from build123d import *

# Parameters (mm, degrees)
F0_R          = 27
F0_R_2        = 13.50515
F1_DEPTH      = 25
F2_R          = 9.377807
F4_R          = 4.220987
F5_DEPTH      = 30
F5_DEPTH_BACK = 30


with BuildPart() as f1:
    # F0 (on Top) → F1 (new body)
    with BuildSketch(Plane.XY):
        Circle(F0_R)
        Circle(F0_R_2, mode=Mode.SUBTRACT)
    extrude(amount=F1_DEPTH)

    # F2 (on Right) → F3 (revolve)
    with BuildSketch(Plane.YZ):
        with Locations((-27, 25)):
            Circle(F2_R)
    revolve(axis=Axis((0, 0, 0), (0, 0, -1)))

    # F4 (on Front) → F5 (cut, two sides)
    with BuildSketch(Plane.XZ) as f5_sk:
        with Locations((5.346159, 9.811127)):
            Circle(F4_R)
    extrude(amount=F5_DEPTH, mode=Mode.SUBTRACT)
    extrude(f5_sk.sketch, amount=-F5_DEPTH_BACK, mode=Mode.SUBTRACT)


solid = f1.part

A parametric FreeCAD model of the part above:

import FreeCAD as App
import Part
import Sketcher
from FreeCAD import Vector
Q = App.Units.Quantity

doc = App.newDocument("Part")
params = doc.addObject("Spreadsheet::Sheet", "Params")
for row, (alias, value) in enumerate([
    ("sketch1_diameter", "54 mm"),
    ("pad1_length", "25 mm"),
    ("revolution_angle", "360 deg"),
], start=1):
    params.set(f"A{row}", alias)
    params.set(f"B{row}", "=" + value)
    params.setAlias(f"B{row}", alias)

body = doc.addObject("PartDesign::Body", "Body")

sketch1 = body.newObject("Sketcher::SketchObject", "Sketch")
sketch1.AttachmentSupport = (doc.getObject("XY_Plane"), [""])
sketch1.MapMode = "FlatFace"
sketch1.addGeometry([
    Part.Circle(Vector(0, 0, 0), Vector(0, 0, 1), 27),
    Part.Circle(Vector(0, 0, 0), Vector(0, 0, 1), 14),
], False)
sketch1.addConstraint([
    Sketcher.Constraint("Coincident", 0, 3, -1, 1),
    Sketcher.Constraint("Coincident", 1, 3, -1, 1),
    Sketcher.Constraint("Diameter", 0, Q("54 mm")),
    Sketcher.Constraint("Diameter", 1, Q("27.0103 mm")),
])
sketch1.setExpression("Constraints[2]", "Params.sketch1_diameter")
pad1 = body.newObject("PartDesign::Pad", "Pad")
pad1.Profile = sketch1
pad1.setExpression("Length", "Params.pad1_length")

sketch2 = body.newObject("Sketcher::SketchObject", "Sketch001")
sketch2.AttachmentSupport = (doc.getObject("YZ_Plane"), [""])
sketch2.MapMode = "FlatFace"
sketch2.addGeometry(Part.Circle(Vector(-27, 25, 0), Vector(0, 0, 1), 9), False)
sketch2.addConstraint([
    Sketcher.Constraint("DistanceX", 0, 3, -1, 1, Q("27 mm")),
    Sketcher.Constraint("DistanceY", -1, 1, 0, 3, Q("25 mm")),
    Sketcher.Constraint("Diameter", 0, Q("18.755614 mm")),
])
revolution = body.newObject("PartDesign::Revolution", "Revolution")
revolution.Profile = sketch2
revolution.ReferenceAxis = (sketch2, ["V_Axis"])
revolution.setExpression("Angle", "Params.revolution_angle")

sketch3 = body.newObject("Sketcher::SketchObject", "Sketch002")
sketch3.AttachmentSupport = (doc.getObject("XZ_Plane"), [""])
sketch3.MapMode = "FlatFace"
sketch3.addGeometry(Part.Circle(Vector(5.3, 9.8, 0), Vector(0, 0, 1), 4.2), False)
sketch3.addConstraint([
    Sketcher.Constraint("Diameter", 0, Q("8.441974 mm")),
    Sketcher.Constraint("DistanceX", -1, 1, 0, 3, Q("5.346159 mm")),
    Sketcher.Constraint("DistanceY", -1, 1, 0, 3, Q("9.811127 mm")),
])
pocket1 = body.newObject("PartDesign::Pocket", "Pocket")
pocket1.Profile = sketch3
pocket1.Type = "ThroughAll"
pocket1.Midplane = True

doc.recompute()
